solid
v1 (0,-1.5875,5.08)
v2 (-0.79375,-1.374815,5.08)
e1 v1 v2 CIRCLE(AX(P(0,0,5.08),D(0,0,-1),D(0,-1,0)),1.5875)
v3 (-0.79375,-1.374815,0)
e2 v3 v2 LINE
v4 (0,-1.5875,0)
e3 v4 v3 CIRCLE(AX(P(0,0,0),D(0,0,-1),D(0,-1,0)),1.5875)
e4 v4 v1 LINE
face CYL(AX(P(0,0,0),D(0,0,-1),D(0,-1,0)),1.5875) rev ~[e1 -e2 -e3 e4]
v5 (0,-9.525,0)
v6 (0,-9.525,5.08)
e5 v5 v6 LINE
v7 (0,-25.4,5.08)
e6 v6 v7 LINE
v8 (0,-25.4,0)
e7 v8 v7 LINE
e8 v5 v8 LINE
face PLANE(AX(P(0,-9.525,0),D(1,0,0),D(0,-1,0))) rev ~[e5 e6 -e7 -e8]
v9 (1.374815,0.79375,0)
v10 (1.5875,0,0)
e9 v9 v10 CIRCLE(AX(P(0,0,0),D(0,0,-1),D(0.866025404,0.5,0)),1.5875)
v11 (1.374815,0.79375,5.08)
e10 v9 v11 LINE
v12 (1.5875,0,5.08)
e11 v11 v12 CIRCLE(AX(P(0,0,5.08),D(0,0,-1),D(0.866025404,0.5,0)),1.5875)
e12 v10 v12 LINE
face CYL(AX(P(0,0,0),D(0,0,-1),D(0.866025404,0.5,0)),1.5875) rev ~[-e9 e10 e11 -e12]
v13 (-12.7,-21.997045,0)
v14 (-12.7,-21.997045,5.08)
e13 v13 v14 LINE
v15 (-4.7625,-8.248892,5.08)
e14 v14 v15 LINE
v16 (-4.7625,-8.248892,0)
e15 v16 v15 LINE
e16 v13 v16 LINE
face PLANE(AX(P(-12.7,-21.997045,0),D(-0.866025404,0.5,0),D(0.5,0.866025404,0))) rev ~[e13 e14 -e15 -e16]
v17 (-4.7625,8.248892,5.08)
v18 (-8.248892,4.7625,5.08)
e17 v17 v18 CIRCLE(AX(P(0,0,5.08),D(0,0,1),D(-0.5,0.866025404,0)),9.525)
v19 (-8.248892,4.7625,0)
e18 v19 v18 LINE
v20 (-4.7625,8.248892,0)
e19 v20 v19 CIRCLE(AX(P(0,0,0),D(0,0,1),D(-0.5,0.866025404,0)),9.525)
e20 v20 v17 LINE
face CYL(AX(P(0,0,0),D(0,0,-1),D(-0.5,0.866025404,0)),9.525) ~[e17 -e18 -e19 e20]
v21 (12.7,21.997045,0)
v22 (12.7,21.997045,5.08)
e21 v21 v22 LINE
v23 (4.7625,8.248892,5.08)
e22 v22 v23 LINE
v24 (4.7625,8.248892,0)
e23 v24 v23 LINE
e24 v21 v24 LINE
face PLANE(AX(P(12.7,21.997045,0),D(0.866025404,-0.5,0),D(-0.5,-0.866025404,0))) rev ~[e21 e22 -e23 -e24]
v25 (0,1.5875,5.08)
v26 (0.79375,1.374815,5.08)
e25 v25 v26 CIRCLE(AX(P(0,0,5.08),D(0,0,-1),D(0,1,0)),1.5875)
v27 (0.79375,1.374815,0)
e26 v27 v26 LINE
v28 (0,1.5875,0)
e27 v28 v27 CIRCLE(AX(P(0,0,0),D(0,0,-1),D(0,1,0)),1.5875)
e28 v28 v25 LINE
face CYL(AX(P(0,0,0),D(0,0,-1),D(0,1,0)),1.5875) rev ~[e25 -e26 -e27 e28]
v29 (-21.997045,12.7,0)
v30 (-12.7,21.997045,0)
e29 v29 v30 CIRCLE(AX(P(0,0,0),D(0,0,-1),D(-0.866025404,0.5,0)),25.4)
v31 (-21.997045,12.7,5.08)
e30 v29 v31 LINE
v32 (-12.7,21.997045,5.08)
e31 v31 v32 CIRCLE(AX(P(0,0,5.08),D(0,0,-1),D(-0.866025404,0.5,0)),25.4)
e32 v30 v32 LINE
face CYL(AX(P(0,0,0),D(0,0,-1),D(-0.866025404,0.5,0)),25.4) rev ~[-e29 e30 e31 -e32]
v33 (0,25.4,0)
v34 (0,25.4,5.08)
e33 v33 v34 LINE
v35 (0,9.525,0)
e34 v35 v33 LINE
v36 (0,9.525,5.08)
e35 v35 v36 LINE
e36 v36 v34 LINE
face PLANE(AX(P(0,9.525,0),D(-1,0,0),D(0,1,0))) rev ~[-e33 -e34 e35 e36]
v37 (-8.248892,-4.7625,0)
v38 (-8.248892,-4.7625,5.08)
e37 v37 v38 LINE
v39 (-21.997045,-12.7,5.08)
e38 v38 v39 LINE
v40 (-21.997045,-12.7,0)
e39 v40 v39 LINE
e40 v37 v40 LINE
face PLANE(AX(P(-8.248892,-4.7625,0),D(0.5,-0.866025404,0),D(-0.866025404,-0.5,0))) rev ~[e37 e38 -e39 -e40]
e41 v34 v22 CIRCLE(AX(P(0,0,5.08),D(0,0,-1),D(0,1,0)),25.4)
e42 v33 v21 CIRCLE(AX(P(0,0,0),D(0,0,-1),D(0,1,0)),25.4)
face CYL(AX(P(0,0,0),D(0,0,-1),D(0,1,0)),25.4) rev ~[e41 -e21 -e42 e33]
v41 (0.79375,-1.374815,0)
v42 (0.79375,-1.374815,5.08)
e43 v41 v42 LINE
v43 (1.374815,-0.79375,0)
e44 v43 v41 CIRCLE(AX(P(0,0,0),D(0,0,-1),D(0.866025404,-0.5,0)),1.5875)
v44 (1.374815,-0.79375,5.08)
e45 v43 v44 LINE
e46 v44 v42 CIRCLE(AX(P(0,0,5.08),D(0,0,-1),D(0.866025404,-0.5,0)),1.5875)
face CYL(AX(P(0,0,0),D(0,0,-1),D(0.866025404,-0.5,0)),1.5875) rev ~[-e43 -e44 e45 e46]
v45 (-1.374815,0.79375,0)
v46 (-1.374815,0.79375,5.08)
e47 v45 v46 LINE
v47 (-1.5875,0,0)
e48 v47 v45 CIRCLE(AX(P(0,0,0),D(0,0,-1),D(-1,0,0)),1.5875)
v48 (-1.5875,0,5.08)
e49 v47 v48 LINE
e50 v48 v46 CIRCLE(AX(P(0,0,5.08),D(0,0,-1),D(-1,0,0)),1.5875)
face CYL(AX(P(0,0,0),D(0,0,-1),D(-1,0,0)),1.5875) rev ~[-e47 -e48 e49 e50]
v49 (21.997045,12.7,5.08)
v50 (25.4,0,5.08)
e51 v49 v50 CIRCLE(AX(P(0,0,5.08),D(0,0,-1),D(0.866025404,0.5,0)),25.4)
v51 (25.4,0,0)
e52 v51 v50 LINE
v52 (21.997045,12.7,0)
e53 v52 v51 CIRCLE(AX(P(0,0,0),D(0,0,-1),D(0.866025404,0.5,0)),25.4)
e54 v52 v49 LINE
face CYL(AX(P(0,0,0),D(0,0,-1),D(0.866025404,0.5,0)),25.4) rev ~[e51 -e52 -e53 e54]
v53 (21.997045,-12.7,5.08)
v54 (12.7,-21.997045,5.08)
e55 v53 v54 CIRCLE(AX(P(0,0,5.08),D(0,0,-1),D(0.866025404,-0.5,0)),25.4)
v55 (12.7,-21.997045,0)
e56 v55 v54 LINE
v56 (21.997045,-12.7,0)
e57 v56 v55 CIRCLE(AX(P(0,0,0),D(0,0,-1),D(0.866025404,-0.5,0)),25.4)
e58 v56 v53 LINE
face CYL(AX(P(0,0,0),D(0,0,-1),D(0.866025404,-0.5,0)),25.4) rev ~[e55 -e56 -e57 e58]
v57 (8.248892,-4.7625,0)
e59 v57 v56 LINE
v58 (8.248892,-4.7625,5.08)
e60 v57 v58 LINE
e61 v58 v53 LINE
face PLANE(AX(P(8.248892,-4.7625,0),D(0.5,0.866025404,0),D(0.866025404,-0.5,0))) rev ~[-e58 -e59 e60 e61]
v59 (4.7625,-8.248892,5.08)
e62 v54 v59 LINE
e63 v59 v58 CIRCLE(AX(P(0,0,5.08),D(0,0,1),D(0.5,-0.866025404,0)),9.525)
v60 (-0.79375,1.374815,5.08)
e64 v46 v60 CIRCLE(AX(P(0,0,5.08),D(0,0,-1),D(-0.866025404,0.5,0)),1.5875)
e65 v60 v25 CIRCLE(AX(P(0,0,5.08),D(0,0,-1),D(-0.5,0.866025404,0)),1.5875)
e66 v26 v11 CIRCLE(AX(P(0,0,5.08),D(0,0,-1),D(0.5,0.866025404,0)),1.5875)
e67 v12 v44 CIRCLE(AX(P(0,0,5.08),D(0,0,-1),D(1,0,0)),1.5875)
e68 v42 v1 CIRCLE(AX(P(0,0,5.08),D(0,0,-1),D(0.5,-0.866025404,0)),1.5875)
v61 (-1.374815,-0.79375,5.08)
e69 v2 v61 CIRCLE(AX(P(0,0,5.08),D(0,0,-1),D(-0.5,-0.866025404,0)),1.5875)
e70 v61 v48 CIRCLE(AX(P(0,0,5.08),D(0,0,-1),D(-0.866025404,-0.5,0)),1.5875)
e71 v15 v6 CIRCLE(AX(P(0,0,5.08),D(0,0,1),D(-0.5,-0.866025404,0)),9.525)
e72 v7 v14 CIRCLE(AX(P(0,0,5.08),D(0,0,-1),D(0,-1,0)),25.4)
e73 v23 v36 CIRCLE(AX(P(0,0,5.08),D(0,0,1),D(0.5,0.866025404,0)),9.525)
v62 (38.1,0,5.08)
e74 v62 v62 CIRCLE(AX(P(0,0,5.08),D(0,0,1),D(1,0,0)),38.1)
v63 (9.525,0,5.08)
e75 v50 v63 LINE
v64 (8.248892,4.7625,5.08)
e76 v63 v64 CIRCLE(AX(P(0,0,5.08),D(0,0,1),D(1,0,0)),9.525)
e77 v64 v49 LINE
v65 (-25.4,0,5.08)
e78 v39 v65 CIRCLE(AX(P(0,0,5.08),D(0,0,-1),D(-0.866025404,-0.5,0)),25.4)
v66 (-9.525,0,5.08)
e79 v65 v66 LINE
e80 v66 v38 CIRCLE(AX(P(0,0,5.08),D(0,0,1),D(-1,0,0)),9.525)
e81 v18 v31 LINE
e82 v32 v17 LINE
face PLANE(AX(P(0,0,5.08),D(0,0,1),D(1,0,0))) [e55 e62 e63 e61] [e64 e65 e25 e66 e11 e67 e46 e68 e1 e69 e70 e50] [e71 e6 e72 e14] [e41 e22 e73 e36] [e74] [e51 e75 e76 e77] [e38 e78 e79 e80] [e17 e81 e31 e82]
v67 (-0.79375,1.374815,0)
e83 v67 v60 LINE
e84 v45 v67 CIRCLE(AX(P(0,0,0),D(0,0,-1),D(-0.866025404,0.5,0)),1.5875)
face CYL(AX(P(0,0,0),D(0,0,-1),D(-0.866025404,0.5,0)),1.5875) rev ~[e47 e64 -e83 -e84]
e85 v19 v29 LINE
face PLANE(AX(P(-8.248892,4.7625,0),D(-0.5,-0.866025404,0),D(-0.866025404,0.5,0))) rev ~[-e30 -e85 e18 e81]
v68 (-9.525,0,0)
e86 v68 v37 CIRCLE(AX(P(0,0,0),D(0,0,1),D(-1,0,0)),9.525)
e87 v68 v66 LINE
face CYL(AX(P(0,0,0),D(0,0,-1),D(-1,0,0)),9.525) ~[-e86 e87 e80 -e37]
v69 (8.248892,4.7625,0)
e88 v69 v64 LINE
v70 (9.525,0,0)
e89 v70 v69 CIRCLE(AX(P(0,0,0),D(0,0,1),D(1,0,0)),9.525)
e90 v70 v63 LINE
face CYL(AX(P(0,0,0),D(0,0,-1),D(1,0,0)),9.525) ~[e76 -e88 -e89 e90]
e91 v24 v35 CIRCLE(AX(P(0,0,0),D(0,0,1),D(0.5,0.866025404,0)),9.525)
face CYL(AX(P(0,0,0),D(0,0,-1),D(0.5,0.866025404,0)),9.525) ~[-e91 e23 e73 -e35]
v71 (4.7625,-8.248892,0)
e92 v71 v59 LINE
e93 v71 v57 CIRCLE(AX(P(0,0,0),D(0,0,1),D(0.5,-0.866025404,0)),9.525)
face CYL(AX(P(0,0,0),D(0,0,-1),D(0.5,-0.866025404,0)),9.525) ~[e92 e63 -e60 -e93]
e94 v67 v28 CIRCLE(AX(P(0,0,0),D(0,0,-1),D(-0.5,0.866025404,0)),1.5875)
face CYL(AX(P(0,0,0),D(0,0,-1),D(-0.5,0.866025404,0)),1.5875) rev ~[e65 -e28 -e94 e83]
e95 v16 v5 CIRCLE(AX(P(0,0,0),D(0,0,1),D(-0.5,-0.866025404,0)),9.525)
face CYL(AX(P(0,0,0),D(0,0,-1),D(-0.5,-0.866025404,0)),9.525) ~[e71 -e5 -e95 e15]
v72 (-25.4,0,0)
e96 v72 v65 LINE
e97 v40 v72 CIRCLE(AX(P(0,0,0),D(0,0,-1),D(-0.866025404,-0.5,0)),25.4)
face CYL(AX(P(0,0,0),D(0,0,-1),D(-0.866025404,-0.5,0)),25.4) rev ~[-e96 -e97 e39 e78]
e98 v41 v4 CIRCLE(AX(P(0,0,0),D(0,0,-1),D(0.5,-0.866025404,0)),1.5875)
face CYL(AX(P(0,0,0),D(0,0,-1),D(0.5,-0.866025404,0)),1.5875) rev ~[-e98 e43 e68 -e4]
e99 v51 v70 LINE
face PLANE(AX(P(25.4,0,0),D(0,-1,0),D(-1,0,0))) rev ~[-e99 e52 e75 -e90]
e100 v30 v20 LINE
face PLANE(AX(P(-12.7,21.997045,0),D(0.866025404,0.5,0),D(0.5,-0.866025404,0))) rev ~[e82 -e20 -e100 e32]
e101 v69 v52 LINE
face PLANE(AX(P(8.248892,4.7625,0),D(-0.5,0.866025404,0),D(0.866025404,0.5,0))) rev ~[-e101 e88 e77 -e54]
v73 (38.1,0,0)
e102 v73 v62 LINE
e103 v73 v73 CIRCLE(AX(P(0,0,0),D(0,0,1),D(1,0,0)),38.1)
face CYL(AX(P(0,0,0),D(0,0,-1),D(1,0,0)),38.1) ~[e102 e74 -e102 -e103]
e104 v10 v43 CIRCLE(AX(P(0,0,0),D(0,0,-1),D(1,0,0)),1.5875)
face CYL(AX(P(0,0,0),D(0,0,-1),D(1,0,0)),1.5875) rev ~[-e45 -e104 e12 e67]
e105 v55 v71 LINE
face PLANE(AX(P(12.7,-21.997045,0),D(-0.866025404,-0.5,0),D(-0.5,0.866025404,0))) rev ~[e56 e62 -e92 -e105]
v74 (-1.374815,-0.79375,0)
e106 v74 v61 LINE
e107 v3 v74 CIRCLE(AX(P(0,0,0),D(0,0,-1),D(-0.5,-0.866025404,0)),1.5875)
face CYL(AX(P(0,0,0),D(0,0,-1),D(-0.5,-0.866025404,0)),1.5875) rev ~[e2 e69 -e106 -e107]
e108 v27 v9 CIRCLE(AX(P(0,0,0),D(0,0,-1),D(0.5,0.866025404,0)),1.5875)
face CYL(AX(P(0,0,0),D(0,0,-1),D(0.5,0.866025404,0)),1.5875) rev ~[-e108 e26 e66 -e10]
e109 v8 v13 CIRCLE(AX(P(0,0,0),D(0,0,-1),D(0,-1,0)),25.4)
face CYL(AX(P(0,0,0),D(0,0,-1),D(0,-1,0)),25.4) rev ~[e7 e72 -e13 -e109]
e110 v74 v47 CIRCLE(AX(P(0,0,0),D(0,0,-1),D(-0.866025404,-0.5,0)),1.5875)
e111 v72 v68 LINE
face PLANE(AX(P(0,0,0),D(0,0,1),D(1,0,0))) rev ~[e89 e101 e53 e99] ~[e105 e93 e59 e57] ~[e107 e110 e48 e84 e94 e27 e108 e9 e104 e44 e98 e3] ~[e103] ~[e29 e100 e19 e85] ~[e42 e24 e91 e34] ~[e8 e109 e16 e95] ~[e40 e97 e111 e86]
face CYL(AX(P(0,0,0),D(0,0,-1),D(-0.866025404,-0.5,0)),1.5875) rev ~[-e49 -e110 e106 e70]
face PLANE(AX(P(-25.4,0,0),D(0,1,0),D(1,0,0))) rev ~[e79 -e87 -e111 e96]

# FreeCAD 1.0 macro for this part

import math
import FreeCAD as App
import Part
import Sketcher
from FreeCAD import Vector
Q = App.Units.Quantity

doc = App.newDocument("Part")
body = doc.addObject("PartDesign::Body", "Body")

# Sketch on XY plane
sketch1 = body.newObject("Sketcher::SketchObject", "Sketch")
sketch1.AttachmentSupport = (doc.getObject("XY_Plane"), [""])
sketch1.MapMode = "FlatFace"
sketch1.addGeometry([
    Part.Circle(Vector(0, 0, 0), Vector(0, 0, 1), 38.1),  # 0
    Part.ArcOfCircle(Part.Circle(Vector(0, 0, 0), Vector(0, 0, 1), 9.525), math.radians(-120), math.radians(-90)),  # 1
    Part.LineSegment(Vector(0, -9.525, 0), Vector(0, -25.4, 0)),  # 2
    Part.ArcOfCircle(Part.Circle(Vector(0, 0, 0), Vector(0, 0, 1), 25.4), math.radians(-120), math.radians(-90)),  # 3
    Part.LineSegment(Vector(-12.7, -21.997045, 0), Vector(-4.7625, -8.248892, 0)),  # 4
    Part.LineSegment(Vector(-25.4, 0, 0), Vector(-9.525, 0, 0)),  # 5
    Part.ArcOfCircle(Part.Circle(Vector(0, 0, 0), Vector(0, 0, 1), 9.525), math.radians(180), math.radians(210)),  # 6
    Part.LineSegment(Vector(-8.248892, -4.7625, 0), Vector(-21.997045, -12.7, 0)),  # 7
    Part.ArcOfCircle(Part.Circle(Vector(0, 0, 0), Vector(0, 0, 1), 25.4), math.radians(180), math.radians(210)),  # 8
    Part.ArcOfCircle(Part.Circle(Vector(0, 0, 0), Vector(0, 0, 1), 1.5875), math.radians(150), math.radians(180)),  # 9
    Part.ArcOfCircle(Part.Circle(Vector(0, 0, 0), Vector(0, 0, 1), 1.5875), math.radians(120), math.radians(150)),  # 10
    Part.ArcOfCircle(Part.Circle(Vector(0, 0, 0), Vector(0, 0, 1), 1.5875), math.radians(90), math.radians(120)),  # 11
    Part.ArcOfCircle(Part.Circle(Vector(0, 0, 0), Vector(0, 0, 1), 1.5875), math.radians(60), math.radians(90)),  # 12
    Part.ArcOfCircle(Part.Circle(Vector(0, 0, 0), Vector(0, 0, 1), 1.5875), math.radians(30), math.radians(60)),  # 13
    Part.ArcOfCircle(Part.Circle(Vector(0, 0, 0), Vector(0, 0, 1), 1.5875), math.radians(0), math.radians(30)),  # 14
    Part.ArcOfCircle(Part.Circle(Vector(0, 0, 0), Vector(0, 0, 1), 1.5875), math.radians(-30), math.radians(0)),  # 15
    Part.ArcOfCircle(Part.Circle(Vector(0, 0, 0), Vector(0, 0, 1), 1.5875), math.radians(-60), math.radians(-30)),  # 16
    Part.ArcOfCircle(Part.Circle(Vector(0, 0, 0), Vector(0, 0, 1), 1.5875), math.radians(-90), math.radians(-60)),  # 17
    Part.ArcOfCircle(Part.Circle(Vector(0, 0, 0), Vector(0, 0, 1), 1.5875), math.radians(-120), math.radians(-90)),  # 18
    Part.ArcOfCircle(Part.Circle(Vector(0, 0, 0), Vector(0, 0, 1), 1.5875), math.radians(-150), math.radians(-120)),  # 19
    Part.ArcOfCircle(Part.Circle(Vector(0, 0, 0), Vector(0, 0, 1), 1.5875), math.radians(180), math.radians(210)),  # 20
    Part.ArcOfCircle(Part.Circle(Vector(0, 0, 0), Vector(0, 0, 1), 9.525), math.radians(-60), math.radians(-30)),  # 21
    Part.LineSegment(Vector(8.248892, -4.7625, 0), Vector(21.997045, -12.7, 0)),  # 22
    Part.ArcOfCircle(Part.Circle(Vector(0, 0, 0), Vector(0, 0, 1), 25.4), math.radians(-60), math.radians(-30)),  # 23
    Part.LineSegment(Vector(12.7, -21.997045, 0), Vector(4.7625, -8.248892, 0)),  # 24
    Part.ArcOfCircle(Part.Circle(Vector(0, 0, 0), Vector(0, 0, 1), 9.525), math.radians(120), math.radians(150)),  # 25
    Part.LineSegment(Vector(-8.248892, 4.7625, 0), Vector(-21.997045, 12.7, 0)),  # 26
    Part.ArcOfCircle(Part.Circle(Vector(0, 0, 0), Vector(0, 0, 1), 25.4), math.radians(120), math.radians(150)),  # 27
    Part.LineSegment(Vector(-12.7, 21.997045, 0), Vector(-4.7625, 8.248892, 0)),  # 28
    Part.ArcOfCircle(Part.Circle(Vector(0, 0, 0), Vector(0, 0, 1), 9.525), math.radians(0), math.radians(30)),  # 29
    Part.LineSegment(Vector(8.248892, 4.7625, 0), Vector(21.997045, 12.7, 0)),  # 30
    Part.ArcOfCircle(Part.Circle(Vector(0, 0, 0), Vector(0, 0, 1), 25.4), math.radians(0), math.radians(30)),  # 31
    Part.LineSegment(Vector(25.4, 0, 0), Vector(9.525, 0, 0)),  # 32
    Part.ArcOfCircle(Part.Circle(Vector(0, 0, 0), Vector(0, 0, 1), 9.525), math.radians(60), math.radians(90)),  # 33
    Part.LineSegment(Vector(0, 9.525, 0), Vector(0, 25.4, 0)),  # 34
    Part.ArcOfCircle(Part.Circle(Vector(0, 0, 0), Vector(0, 0, 1), 25.4), math.radians(60), math.radians(90)),  # 35
    Part.LineSegment(Vector(12.7, 21.997045, 0), Vector(4.7625, 8.248892, 0)),  # 36
], False)
sketch1.addConstraint([
    Sketcher.Constraint("Coincident", 1, 2, 2, 1),
    Sketcher.Constraint("Coincident", 2, 2, 3, 2),
    Sketcher.Constraint("Coincident", 3, 1, 4, 1),
    Sketcher.Constraint("Coincident", 4, 2, 1, 1),
    Sketcher.Constraint("Coincident", 5, 2, 6, 1),
    Sketcher.Constraint("Coincident", 6, 2, 7, 1),
    Sketcher.Constraint("Coincident", 7, 2, 8, 2),
    Sketcher.Constraint("Coincident", 8, 1, 5, 1),
    Sketcher.Constraint("Tangent", 9, 1, 10, 2),
    Sketcher.Constraint("Tangent", 10, 1, 11, 2),
    Sketcher.Constraint("Tangent", 11, 1, 12, 2),
    Sketcher.Constraint("Tangent", 12, 1, 13, 2),
    Sketcher.Constraint("Tangent", 13, 1, 14, 2),
    Sketcher.Constraint("Tangent", 14, 1, 15, 2),
    Sketcher.Constraint("Tangent", 15, 1, 16, 2),
    Sketcher.Constraint("Tangent", 16, 1, 17, 2),
    Sketcher.Constraint("Tangent", 17, 1, 18, 2),
    Sketcher.Constraint("Tangent", 18, 1, 19, 2),
    Sketcher.Constraint("Tangent", 19, 1, 20, 2),
    Sketcher.Constraint("Tangent", 20, 1, 9, 2),
    Sketcher.Constraint("Coincident", 21, 2, 22, 1),
    Sketcher.Constraint("Coincident", 22, 2, 23, 2),
    Sketcher.Constraint("Coincident", 23, 1, 24, 1),
    Sketcher.Constraint("Coincident", 24, 2, 21, 1),
    Sketcher.Constraint("Coincident", 25, 2, 26, 1),
    Sketcher.Constraint("Coincident", 26, 2, 27, 2),
    Sketcher.Constraint("Coincident", 27, 1, 28, 1),
    Sketcher.Constraint("Coincident", 28, 2, 25, 1),
    Sketcher.Constraint("Coincident", 29, 2, 30, 1),
    Sketcher.Constraint("Coincident", 30, 2, 31, 2),
    Sketcher.Constraint("Coincident", 31, 1, 32, 1),
    Sketcher.Constraint("Coincident", 32, 2, 29, 1),
    Sketcher.Constraint("Coincident", 33, 2, 34, 1),
    Sketcher.Constraint("Coincident", 34, 2, 35, 2),
    Sketcher.Constraint("Coincident", 35, 1, 36, 1),
    Sketcher.Constraint("Coincident", 36, 2, 33, 1),
    Sketcher.Constraint("Vertical", 2),
    Sketcher.Constraint("Horizontal", 5),
    Sketcher.Constraint("Horizontal", 32),
    Sketcher.Constraint("Vertical", 34),
    Sketcher.Constraint("Coincident", 0, 3, -1, 1),
    Sketcher.Constraint("Coincident", 1, 3, -1, 1),
    Sketcher.Constraint("Coincident", 3, 3, -1, 1),
    Sketcher.Constraint("Coincident", 6, 3, -1, 1),
    Sketcher.Constraint("Coincident", 8, 3, -1, 1),
    Sketcher.Constraint("Coincident", 9, 3, -1, 1),
    Sketcher.Constraint("Coincident", 11, 3, -1, 1),
    Sketcher.Constraint("Coincident", 13, 3, -1, 1),
    Sketcher.Constraint("Coincident", 15, 3, -1, 1),
    Sketcher.Constraint("Coincident", 17, 3, -1, 1),
    Sketcher.Constraint("Coincident", 21, 3, -1, 1),
    Sketcher.Constraint("Coincident", 23, 3, -1, 1),
    Sketcher.Constraint("Coincident", 25, 3, -1, 1),
    Sketcher.Constraint("Coincident", 27, 3, -1, 1),
    Sketcher.Constraint("Coincident", 29, 3, -1, 1),
    Sketcher.Constraint("Coincident", 31, 3, -1, 1),
    Sketcher.Constraint("Coincident", 33, 3, -1, 1),
    Sketcher.Constraint("Coincident", 35, 3, -1, 1),
    Sketcher.Constraint("Equal", 1, 6),
    Sketcher.Constraint("Equal", 3, 8),
    Sketcher.Constraint("Equal", 17, 18),
    Sketcher.Constraint("Equal", 6, 21),
    Sketcher.Constraint("Equal", 8, 23),
    Sketcher.Constraint("Equal", 21, 25),
    Sketcher.Constraint("Equal", 23, 27),
    Sketcher.Constraint("Equal", 25, 29),
    Sketcher.Constraint("Equal", 27, 31),
    Sketcher.Constraint("Equal", 29, 33),
    Sketcher.Constraint("Equal", 31, 35),
    Sketcher.Constraint("PointOnObject", 1, 2, -2),
    Sketcher.Constraint("PointOnObject", 5, 2, -1),
    Sketcher.Constraint("PointOnObject", 11, 1, -2),
    Sketcher.Constraint("PointOnObject", 14, 1, -1),
    Sketcher.Constraint("PointOnObject", 17, 1, -2),
    Sketcher.Constraint("PointOnObject", 20, 1, -1),
    Sketcher.Constraint("PointOnObject", 31, 1, -1),
    Sketcher.Constraint("PointOnObject", 33, 2, -2),
    Sketcher.Constraint("Perpendicular", 4, 22),
    Sketcher.Constraint("Perpendicular", 7, 24),
    Sketcher.Constraint("Parallel", 22, 26),
    Sketcher.Constraint("Parallel", 24, 28),
    Sketcher.Constraint("Perpendicular", 28, 30),
    Sketcher.Constraint("Perpendicular", 26, 36),
    Sketcher.Constraint("Horizontal", 10, 1, 12, 1),
    Sketcher.Constraint("Horizontal", 9, 1, 13, 1),
    Sketcher.Constraint("Horizontal", 16, 1, 18, 1),
    Sketcher.Constraint("Horizontal", 15, 1, 19, 1),
    Sketcher.Constraint("Horizontal", 6, 2, 21, 2),
    Sketcher.Constraint("Horizontal", 7, 2, 22, 2),
    Sketcher.Constraint("Horizontal", 3, 1, 23, 1),
    Sketcher.Constraint("Horizontal", 25, 2, 29, 2),
    Sketcher.Constraint("Horizontal", 27, 1, 35, 1),
    Sketcher.Constraint("Vertical", 13, 1, 15, 1),
    Sketcher.Constraint("Vertical", 12, 1, 16, 1),
    Sketcher.Constraint("Vertical", 6, 2, 25, 2),
    Sketcher.Constraint("Vertical", 3, 1, 27, 1),
    Sketcher.Constraint("Diameter", 0, Q("3 in")),
    Sketcher.Constraint("Radius", 3, Q("1 in")),
    Sketcher.Constraint("Angle", 4, Q("60 deg")),
    Sketcher.Constraint("Radius", 1, Q("0.375 in")),
    Sketcher.Constraint("Radius", 9, Q("0.0625 in")),
    Sketcher.Constraint("DistanceX", 3, 1, -1, 1, Q("0.5 in")),
    Sketcher.Constraint("DistanceY", 7, 2, -1, 1, Q("0.5 in")),
    Sketcher.Constraint("DistanceY", -1, 1, 9, 1, Q("0.03125 in")),
    Sketcher.Constraint("DistanceX", 10, 1, -1, 1, Q("0.03125 in")),
])
pad1 = body.newObject("PartDesign::Pad", "Pad")
pad1.Profile = sketch1
pad1.Length = Q("0.2 in")

doc.recompute()
